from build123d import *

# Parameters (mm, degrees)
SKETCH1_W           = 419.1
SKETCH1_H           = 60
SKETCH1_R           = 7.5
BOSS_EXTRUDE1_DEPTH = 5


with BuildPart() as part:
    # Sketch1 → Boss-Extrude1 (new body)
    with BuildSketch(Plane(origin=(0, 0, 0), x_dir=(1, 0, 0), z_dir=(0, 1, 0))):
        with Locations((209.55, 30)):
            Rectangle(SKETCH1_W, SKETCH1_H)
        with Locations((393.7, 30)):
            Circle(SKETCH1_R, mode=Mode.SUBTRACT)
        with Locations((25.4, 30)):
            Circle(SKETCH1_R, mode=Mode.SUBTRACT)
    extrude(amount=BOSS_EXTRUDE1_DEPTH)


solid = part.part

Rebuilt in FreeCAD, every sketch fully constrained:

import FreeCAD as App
import Part
import Sketcher

doc = App.newDocument("Part")
body = doc.addObject("PartDesign::Body", "Body")

# Sketch on XZ plane
sketch1 = body.newObject("Sketcher::SketchObject", "Sketch")
sketch1.AttachmentSupport = (doc.getObject("XZ_Plane"), [""])
sketch1.MapMode = "FlatFace"
sketch1.addGeometry(Part.LineSegment(App.Vector(0, -60, 0), App.Vector(0, 0, 0)), False)
sketch1.addGeometry(Part.LineSegment(App.Vector(0, 0, 0), App.Vector(419, 0, 0)), False)
sketch1.addGeometry(Part.LineSegment(App.Vector(419, 0, 0), App.Vector(419, -60, 0)), False)
sketch1.addGeometry(Part.LineSegment(App.Vector(419, -60, 0), App.Vector(0, -60, 0)), False)
sketch1.addGeometry(Part.Circle(App.Vector(25, -30, 0), App.Vector(0, 0, 1), 8), False)
sketch1.addGeometry(Part.Circle(App.Vector(394, -30, 0), App.Vector(0, 0, 1), 8), False)
sketch1.addConstraint(Sketcher.Constraint("Coincident", 0, 2, 1, 1))
sketch1.addConstraint(Sketcher.Constraint("Coincident", 1, 2, 2, 1))
sketch1.addConstraint(Sketcher.Constraint("Coincident", 2, 2, 3, 1))
sketch1.addConstraint(Sketcher.Constraint("Coincident", 3, 2, 0, 1))
sketch1.addConstraint(Sketcher.Constraint("Vertical", 0))
sketch1.addConstraint(Sketcher.Constraint("Horizontal", 1))
sketch1.addConstraint(Sketcher.Constraint("Vertical", 2))
sketch1.addConstraint(Sketcher.Constraint("Horizontal", 3))
sketch1.addConstraint(Sketcher.Constraint("Coincident", 0, 2, -1, 1))
sketch1.addConstraint(Sketcher.Constraint("Equal", 4, 5))
sketch1.addConstraint(Sketcher.Constraint("Horizontal", 4, 3, 5, 3))
sketch1.addConstraint(Sketcher.Constraint("Diameter", 4, 15.0))
sketch1.addConstraint(Sketcher.Constraint("DistanceY", 0, 1, 0, 2, 60.0))
sketch1.addConstraint(Sketcher.Constraint("DistanceX", 1, 1, 1, 2, 419.1))
sketch1.addConstraint(Sketcher.Constraint("DistanceY", 4, 3, -1, 1, 30.0))
sketch1.addConstraint(Sketcher.Constraint("DistanceX", -1, 1, 4, 3, 25.4))
sketch1.addConstraint(Sketcher.Constraint("DistanceX", -1, 1, 5, 3, 393.7))
pad1 = body.newObject("PartDesign::Pad", "Pad")
pad1.Profile = sketch1
pad1.Length = 5
pad1.Reversed = True

doc.recompute()
